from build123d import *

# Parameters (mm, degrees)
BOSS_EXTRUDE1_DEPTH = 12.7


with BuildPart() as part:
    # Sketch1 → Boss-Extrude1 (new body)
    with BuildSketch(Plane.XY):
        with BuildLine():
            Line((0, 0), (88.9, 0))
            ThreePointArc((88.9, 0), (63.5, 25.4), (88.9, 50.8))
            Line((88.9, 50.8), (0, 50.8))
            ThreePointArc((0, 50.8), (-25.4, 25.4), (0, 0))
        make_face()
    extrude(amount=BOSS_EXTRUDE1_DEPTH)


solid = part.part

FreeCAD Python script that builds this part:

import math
import FreeCAD as App
import Part
import Sketcher

V = App.Vector
Q = App.Units.Quantity

doc = App.newDocument("Part")
body = doc.addObject("PartDesign::Body", "Body")

sketch1 = body.newObject("Sketcher::SketchObject", "Sketch")
sketch1.AttachmentSupport = (doc.getObject("XY_Plane"), [""])
sketch1.MapMode = "FlatFace"
sketch1.addGeometry([
    Part.LineSegment(V(0, 0, 0), V(88.9, 0, 0)),
    Part.ArcOfCircle(Part.Circle(V(88.9, 25.4, 0), V(0, 0, 1), 25.4), math.radians(90), math.radians(270)),
    Part.LineSegment(V(88.9, 50.8, 0), V(0, 50.8, 0)),
    Part.ArcOfCircle(Part.Circle(V(0, 25.4, 0), V(0, 0, 1), 25.4), math.radians(90), math.radians(270)),
], False)
sketch1.addConstraint([
    Sketcher.Constraint("Tangent", 0, 2, 1, 2),
    Sketcher.Constraint("Tangent", 1, 1, 2, 1),
    Sketcher.Constraint("Tangent", 2, 2, 3, 1),
    Sketcher.Constraint("Tangent", 3, 2, 0, 1),
    Sketcher.Constraint("Horizontal", 0),
    Sketcher.Constraint("Horizontal", 2),
    Sketcher.Constraint("Coincident", 3, 2, -1, 1),
    Sketcher.Constraint("Radius", 1, Q("1 in")),
    Sketcher.Constraint("DistanceX", 0, 1, 0, 2, Q("3.5 in")),
])
pad1 = body.newObject("PartDesign::Pad", "Pad")
pad1.Profile = sketch1
pad1.Length = Q("0.5 in")

doc.recompute()
